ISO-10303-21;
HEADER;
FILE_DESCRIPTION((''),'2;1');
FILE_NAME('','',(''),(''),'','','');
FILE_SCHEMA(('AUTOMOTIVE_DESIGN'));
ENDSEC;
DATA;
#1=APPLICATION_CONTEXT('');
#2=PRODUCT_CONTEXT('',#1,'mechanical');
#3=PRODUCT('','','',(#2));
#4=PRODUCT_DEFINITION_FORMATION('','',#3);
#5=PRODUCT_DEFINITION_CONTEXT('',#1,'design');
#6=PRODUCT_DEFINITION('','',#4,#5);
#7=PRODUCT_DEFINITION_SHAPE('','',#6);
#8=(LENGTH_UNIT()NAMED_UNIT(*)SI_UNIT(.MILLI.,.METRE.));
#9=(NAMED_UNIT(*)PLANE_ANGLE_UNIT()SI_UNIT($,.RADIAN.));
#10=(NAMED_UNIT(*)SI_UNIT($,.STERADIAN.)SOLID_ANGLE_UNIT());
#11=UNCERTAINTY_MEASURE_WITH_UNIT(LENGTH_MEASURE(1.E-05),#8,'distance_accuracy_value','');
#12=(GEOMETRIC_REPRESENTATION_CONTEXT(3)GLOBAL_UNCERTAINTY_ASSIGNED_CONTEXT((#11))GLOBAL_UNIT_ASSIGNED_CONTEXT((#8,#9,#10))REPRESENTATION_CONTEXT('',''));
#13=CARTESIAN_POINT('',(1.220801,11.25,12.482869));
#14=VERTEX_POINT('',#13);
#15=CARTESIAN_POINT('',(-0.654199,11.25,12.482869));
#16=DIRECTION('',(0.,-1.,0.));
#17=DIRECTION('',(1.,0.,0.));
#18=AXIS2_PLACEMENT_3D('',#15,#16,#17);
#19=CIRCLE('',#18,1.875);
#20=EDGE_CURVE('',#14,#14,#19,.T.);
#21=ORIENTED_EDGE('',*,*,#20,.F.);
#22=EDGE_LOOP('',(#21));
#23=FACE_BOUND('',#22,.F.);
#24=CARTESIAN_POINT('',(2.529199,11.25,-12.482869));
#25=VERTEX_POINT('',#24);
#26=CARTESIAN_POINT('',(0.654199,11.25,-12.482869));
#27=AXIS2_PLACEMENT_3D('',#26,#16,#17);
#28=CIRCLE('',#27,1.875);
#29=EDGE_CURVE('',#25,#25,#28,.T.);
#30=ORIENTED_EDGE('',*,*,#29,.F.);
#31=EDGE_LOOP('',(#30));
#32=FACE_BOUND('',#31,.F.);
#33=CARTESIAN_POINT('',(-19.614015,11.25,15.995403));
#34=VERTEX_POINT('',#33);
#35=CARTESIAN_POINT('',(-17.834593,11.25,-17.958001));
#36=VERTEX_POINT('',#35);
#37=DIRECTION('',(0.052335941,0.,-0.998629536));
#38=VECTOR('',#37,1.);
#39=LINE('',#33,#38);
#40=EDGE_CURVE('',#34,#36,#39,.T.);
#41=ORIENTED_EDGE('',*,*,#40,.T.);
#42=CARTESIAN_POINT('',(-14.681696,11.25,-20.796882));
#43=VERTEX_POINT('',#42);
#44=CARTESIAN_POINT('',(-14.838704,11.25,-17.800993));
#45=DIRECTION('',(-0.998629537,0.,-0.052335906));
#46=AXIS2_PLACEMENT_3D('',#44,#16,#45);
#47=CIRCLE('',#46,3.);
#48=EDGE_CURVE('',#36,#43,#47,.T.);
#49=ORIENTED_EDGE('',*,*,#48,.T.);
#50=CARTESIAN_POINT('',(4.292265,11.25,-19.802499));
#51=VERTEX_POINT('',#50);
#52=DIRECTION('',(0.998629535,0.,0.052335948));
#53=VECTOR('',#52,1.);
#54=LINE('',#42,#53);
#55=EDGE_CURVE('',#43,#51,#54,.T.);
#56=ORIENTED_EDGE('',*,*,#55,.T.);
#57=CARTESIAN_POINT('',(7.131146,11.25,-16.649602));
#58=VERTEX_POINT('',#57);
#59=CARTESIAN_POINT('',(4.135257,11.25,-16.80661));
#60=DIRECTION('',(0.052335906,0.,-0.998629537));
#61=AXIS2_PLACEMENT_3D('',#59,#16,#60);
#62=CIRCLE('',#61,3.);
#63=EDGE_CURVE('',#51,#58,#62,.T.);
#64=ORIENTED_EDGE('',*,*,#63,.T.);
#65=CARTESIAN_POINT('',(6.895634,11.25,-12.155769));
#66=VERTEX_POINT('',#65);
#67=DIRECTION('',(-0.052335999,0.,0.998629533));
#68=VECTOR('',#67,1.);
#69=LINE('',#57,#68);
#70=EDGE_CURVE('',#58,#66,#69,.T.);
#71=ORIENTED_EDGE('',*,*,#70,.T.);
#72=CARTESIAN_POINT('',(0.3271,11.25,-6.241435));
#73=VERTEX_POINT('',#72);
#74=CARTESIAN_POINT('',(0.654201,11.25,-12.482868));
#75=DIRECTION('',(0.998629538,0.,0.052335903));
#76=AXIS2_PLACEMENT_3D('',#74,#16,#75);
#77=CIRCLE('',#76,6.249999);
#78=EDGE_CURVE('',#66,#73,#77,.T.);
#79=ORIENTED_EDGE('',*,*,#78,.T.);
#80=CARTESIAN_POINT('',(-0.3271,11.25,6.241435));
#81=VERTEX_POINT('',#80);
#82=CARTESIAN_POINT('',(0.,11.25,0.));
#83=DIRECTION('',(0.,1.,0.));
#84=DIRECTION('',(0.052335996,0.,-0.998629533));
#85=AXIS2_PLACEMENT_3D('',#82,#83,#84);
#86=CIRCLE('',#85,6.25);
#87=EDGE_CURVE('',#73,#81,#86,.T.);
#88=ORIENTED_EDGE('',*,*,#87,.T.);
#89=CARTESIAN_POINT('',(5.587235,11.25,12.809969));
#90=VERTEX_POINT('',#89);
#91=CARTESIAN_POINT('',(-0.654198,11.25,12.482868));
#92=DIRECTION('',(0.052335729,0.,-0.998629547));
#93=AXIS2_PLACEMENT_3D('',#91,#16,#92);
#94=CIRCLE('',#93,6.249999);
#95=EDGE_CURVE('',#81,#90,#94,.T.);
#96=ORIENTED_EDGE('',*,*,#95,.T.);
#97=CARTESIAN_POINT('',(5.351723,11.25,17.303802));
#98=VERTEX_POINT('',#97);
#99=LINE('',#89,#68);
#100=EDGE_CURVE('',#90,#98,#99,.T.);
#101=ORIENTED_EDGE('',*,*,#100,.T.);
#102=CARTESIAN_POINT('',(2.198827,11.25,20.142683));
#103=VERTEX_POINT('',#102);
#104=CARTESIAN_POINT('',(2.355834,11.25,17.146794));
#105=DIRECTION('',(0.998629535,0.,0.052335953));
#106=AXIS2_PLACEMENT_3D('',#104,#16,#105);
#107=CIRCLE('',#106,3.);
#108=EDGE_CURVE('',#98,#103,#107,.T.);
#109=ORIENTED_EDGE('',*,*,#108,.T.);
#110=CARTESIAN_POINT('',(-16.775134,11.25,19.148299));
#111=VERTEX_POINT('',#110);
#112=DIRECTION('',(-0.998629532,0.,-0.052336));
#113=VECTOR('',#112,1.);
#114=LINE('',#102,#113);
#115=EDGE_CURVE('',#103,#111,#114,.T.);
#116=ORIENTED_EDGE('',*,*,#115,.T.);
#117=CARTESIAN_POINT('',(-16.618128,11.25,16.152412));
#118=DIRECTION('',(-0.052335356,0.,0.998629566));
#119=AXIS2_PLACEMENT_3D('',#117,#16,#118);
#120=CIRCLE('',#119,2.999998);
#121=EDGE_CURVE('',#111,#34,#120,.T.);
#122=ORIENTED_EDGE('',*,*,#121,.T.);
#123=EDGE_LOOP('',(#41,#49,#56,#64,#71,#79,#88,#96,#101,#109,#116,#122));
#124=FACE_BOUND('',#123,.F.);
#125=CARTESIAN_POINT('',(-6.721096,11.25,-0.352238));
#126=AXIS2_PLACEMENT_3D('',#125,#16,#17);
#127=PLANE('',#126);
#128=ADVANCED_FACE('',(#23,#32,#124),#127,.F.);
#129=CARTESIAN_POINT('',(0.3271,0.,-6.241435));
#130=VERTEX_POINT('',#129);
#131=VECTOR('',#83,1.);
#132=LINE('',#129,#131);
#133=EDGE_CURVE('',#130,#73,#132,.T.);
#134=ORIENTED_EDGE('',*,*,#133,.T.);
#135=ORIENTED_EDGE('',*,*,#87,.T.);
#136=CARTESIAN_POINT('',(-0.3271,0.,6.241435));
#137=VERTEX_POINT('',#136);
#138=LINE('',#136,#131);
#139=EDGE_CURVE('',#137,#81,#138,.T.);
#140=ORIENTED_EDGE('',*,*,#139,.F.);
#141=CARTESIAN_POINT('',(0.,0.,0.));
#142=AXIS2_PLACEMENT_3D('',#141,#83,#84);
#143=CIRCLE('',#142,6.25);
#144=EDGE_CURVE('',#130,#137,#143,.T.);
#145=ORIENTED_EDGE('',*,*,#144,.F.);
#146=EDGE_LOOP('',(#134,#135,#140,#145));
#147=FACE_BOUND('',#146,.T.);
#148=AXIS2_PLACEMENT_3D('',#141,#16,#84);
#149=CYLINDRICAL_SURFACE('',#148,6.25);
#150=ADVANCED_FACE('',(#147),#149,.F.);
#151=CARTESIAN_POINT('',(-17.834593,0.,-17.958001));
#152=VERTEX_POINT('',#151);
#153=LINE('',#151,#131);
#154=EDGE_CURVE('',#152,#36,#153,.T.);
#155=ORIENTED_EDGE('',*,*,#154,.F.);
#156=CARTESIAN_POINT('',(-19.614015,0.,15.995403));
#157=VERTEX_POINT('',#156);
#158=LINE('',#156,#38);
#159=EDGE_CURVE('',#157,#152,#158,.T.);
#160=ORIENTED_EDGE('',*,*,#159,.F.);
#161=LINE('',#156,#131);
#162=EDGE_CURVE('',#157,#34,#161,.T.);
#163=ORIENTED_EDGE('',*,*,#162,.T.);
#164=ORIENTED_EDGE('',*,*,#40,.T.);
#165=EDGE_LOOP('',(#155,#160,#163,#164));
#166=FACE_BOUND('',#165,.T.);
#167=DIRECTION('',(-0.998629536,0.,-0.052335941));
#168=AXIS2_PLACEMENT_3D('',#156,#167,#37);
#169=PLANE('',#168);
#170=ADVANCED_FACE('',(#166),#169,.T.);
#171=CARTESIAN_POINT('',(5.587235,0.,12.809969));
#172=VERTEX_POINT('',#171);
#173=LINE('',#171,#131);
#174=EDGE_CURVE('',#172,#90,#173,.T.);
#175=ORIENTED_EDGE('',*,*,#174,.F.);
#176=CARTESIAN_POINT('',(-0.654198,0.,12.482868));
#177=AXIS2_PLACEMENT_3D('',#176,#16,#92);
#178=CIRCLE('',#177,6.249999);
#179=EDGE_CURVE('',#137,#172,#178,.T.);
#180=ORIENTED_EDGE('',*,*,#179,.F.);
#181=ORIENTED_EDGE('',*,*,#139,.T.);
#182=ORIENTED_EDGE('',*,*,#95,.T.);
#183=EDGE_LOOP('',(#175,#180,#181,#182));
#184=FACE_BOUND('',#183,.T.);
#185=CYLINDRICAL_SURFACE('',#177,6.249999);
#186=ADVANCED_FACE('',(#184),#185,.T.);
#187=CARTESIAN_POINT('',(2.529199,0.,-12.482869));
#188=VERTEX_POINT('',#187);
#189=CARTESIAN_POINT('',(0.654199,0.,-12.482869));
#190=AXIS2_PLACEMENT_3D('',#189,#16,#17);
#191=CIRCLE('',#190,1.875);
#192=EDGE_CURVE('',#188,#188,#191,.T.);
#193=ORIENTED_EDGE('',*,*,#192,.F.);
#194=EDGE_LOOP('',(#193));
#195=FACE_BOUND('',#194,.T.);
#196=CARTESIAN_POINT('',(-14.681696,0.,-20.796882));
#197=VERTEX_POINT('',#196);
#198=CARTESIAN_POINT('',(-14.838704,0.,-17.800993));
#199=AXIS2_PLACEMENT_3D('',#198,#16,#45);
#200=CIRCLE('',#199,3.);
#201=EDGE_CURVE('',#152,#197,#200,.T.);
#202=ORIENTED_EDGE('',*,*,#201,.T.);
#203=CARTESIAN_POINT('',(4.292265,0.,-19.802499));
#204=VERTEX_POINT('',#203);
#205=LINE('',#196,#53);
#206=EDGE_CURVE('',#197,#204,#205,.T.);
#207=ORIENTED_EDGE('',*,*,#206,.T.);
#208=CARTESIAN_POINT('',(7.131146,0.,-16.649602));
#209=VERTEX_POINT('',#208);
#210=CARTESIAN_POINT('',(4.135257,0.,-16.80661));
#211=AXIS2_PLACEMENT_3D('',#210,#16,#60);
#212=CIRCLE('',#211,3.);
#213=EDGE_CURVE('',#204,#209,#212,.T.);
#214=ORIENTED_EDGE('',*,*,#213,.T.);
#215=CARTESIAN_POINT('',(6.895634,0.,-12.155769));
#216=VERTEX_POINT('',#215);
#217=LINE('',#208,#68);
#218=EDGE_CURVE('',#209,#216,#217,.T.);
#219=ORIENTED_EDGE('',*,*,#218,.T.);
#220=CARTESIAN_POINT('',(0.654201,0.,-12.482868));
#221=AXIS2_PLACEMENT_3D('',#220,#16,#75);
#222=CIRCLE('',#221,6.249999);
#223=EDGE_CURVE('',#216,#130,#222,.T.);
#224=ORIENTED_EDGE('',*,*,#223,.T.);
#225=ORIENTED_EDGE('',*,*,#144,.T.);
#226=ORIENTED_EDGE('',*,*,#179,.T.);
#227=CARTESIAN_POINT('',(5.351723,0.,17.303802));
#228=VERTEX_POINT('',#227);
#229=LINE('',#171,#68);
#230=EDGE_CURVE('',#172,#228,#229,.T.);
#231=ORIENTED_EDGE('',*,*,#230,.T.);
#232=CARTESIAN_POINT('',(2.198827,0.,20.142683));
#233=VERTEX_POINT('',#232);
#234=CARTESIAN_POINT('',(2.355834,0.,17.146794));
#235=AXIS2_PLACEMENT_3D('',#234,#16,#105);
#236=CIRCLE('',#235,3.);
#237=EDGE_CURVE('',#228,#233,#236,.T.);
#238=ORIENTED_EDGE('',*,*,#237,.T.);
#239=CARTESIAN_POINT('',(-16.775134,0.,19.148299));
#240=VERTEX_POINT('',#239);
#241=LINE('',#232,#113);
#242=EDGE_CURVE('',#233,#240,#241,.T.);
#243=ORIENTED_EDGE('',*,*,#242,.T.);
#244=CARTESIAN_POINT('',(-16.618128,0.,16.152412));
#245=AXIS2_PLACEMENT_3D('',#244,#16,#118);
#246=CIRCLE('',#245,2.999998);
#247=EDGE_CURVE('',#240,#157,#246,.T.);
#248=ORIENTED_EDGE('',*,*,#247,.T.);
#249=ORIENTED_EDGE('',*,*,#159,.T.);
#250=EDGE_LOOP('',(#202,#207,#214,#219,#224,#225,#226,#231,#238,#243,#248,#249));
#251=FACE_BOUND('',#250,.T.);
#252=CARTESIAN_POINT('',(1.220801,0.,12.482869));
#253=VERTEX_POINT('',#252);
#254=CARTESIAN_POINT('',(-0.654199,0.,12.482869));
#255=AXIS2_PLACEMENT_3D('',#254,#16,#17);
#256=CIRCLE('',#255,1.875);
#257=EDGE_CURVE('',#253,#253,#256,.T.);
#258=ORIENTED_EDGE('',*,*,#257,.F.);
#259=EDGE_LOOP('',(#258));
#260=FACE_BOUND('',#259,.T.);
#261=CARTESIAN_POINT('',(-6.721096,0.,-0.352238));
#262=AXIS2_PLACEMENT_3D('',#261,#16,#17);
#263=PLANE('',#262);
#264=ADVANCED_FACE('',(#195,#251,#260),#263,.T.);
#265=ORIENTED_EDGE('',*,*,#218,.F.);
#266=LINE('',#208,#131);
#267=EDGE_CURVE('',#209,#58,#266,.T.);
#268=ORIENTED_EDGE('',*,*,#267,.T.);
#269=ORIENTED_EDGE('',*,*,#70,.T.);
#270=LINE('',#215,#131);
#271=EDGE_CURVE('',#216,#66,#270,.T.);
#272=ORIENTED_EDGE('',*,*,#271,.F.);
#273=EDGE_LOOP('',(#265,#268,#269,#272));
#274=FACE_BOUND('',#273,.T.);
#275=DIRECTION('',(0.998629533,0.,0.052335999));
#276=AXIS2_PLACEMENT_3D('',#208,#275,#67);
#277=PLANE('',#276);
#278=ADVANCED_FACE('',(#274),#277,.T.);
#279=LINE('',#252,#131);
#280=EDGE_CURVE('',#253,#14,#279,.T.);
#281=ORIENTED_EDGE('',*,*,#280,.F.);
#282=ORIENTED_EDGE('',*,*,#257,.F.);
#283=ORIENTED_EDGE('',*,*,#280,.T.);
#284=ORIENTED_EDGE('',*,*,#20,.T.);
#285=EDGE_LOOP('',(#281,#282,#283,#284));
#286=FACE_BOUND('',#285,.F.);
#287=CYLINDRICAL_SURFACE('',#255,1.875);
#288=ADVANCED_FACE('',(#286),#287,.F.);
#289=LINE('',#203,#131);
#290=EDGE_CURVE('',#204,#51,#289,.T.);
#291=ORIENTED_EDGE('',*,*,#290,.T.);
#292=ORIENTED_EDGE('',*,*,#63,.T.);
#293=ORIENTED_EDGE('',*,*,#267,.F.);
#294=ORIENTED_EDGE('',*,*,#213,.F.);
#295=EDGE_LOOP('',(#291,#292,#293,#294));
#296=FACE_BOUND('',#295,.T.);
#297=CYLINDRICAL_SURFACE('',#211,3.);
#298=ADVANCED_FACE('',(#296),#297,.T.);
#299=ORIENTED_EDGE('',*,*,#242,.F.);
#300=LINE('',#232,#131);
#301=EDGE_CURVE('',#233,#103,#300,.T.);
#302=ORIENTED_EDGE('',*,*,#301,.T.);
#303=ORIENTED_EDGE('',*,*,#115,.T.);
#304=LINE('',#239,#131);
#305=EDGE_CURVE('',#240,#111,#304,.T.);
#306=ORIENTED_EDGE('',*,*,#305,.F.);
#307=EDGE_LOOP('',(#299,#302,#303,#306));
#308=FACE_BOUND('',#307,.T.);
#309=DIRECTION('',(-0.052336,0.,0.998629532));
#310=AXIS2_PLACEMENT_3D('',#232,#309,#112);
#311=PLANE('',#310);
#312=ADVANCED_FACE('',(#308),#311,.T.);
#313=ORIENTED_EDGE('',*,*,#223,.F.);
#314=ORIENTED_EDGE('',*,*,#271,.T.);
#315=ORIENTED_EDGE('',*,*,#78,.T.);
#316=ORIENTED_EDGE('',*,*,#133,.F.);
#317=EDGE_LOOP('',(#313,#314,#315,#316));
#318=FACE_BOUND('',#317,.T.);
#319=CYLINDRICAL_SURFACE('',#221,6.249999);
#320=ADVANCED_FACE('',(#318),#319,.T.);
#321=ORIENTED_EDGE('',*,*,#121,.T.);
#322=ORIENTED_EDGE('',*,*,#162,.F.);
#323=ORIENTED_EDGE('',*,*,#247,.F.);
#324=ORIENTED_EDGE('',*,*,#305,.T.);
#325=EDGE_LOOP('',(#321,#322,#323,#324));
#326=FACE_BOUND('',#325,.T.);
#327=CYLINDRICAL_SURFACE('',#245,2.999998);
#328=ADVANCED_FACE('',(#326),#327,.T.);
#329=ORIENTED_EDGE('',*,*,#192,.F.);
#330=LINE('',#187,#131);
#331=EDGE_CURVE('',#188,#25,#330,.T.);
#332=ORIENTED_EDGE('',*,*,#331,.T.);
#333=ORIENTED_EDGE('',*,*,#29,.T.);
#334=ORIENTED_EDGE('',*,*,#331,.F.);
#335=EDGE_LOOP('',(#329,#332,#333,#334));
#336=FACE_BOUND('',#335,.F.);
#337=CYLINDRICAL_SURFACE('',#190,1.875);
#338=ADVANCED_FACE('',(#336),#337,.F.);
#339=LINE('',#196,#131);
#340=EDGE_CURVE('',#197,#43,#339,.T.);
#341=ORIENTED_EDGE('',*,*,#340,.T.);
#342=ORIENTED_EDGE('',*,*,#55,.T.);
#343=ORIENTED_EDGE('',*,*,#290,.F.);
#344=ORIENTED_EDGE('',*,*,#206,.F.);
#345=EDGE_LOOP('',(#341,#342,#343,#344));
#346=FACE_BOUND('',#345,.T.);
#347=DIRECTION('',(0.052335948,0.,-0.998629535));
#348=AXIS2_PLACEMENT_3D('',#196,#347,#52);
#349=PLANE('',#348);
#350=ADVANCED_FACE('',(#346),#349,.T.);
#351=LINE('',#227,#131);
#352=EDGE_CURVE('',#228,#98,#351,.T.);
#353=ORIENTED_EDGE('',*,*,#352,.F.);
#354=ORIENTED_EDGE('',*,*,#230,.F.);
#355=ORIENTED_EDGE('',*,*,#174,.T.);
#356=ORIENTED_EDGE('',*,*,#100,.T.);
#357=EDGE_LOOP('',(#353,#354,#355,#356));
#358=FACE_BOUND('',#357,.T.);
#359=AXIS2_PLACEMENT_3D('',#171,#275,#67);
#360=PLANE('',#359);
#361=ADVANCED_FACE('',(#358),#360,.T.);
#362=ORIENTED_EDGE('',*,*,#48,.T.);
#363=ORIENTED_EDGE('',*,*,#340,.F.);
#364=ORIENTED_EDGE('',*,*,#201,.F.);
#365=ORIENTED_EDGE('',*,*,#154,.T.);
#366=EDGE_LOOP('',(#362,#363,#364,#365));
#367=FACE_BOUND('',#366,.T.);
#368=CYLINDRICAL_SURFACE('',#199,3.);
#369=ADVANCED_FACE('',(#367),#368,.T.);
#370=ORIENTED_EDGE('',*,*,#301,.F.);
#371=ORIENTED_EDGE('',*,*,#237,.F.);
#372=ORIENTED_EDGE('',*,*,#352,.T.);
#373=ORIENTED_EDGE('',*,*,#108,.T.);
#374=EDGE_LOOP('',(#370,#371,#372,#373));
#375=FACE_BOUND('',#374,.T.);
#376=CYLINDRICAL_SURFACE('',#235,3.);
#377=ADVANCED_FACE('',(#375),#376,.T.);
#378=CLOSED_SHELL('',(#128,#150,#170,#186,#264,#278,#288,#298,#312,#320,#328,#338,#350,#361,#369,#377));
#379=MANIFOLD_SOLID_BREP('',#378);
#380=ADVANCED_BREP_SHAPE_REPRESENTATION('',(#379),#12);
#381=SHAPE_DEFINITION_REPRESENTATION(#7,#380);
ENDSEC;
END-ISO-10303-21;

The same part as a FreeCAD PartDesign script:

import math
import FreeCAD as App
import Part
import Sketcher
from FreeCAD import Vector
Q = App.Units.Quantity

doc = App.newDocument("Part")
params = doc.addObject("Spreadsheet::Sheet", "Params")
for row, (alias, value) in enumerate([
    ("sketch1_radius", "3 mm"),
    ("sketch1_diameter", "3.75 mm"),
    ("sketch1_radius2", "6.249999 mm"),
    ("sketch1_length", "19 mm"),
    ("sketch1_length2", "34 mm"),
    ("pad1_length", "11.25 mm"),
], start=1):
    params.set(f"A{row}", alias)
    params.set(f"B{row}", "=" + value)
    params.setAlias(f"B{row}", alias)

body = doc.addObject("PartDesign::Body", "Body")

sketch1 = doc.addObject("Sketcher::SketchObject", "Sketch")
body.addObject(sketch1)
sketch1.AttachmentSupport = (doc.XZ_Plane, [""])
sketch1.MapMode = "FlatFace"
sketch1.addGeometry([
    Part.ArcOfCircle(Part.Circle(Vector(-0.654198, 12.482868, 0), Vector(0, 0, 1), 6.249999), math.radians(-87.000013), math.radians(3.000009)),
    Part.LineSegment(Vector(5.587235, 12.809969, 0), Vector(5.351723, 17.303802, 0)),
    Part.ArcOfCircle(Part.Circle(Vector(2.355834, 17.146794, 0), Vector(0, 0, 1), 3), math.radians(3), math.radians(92.999986)),
    Part.LineSegment(Vector(2.198827, 20.142683, 0), Vector(-16.775134, 19.148299, 0)),
    Part.ArcOfCircle(Part.Circle(Vector(-16.618128, 16.152412, 0), Vector(0, 0, 1), 2.999998), math.radians(92.999966), math.radians(183.000021)),
    Part.LineSegment(Vector(-19.614015, 15.995403, 0), Vector(-17.834593, -17.958001, 0)),
    Part.ArcOfCircle(Part.Circle(Vector(-14.838704, -17.800993, 0), Vector(0, 0, 1), 3), math.radians(-177.000003), math.radians(-86.999993)),
    Part.LineSegment(Vector(-14.681696, -20.796882, 0), Vector(4.292265, -19.802499, 0)),
    Part.ArcOfCircle(Part.Circle(Vector(4.135257, -16.80661, 0), Vector(0, 0, 1), 3), math.radians(-87.000003), math.radians(3.000007)),
    Part.LineSegment(Vector(7.131146, -16.649602, 0), Vector(6.895634, -12.155769, 0)),
    Part.ArcOfCircle(Part.Circle(Vector(0.654201, -12.482868, 0), Vector(0, 0, 1), 6.249999), math.radians(2.999997), math.radians(93.000009)),
    Part.ArcOfCircle(Part.Circle(Vector(0, 0, 0), Vector(0, 0, 1), 6.25), math.radians(93.000002), math.radians(273.000002)),
    Part.Circle(Vector(0.654199, -12.482869, 0), Vector(0, 0, 1), 1.875),
    Part.Circle(Vector(-0.654199, 12.482869, 0), Vector(0, 0, 1), 1.875),
], False)
sketch1.addConstraint([
    Sketcher.Constraint("Tangent", 0, 2, 1, 1),
    Sketcher.Constraint("Tangent", 1, 2, 2, 1),
    Sketcher.Constraint("Tangent", 2, 2, 3, 1),
    Sketcher.Constraint("Tangent", 3, 2, 4, 1),
    Sketcher.Constraint("Tangent", 4, 2, 5, 1),
    Sketcher.Constraint("Tangent", 5, 2, 6, 1),
    Sketcher.Constraint("Tangent", 6, 2, 7, 1),
    Sketcher.Constraint("Tangent", 7, 2, 8, 1),
    Sketcher.Constraint("Tangent", 8, 2, 9, 1),
    Sketcher.Constraint("Tangent", 9, 2, 10, 1),
    Sketcher.Constraint("Tangent", 10, 2, 11, 2),
    Sketcher.Constraint("Tangent", 11, 1, 0, 1),
    Sketcher.Constraint("Coincident", 11, 3, -1, 1),
    Sketcher.Constraint("Coincident", 12, 3, 10, 3),
    Sketcher.Constraint("Coincident", 13, 3, 0, 3),
    Sketcher.Constraint("Equal", 2, 4),
    Sketcher.Constraint("Equal", 4, 6),
    Sketcher.Constraint("Equal", 6, 8),
    Sketcher.Constraint("Equal", 0, 10),
    Sketcher.Constraint("Equal", 10, 11),
    Sketcher.Constraint("Equal", 12, 13),
    Sketcher.Constraint("Perpendicular", 1, 3),
    Sketcher.Constraint("Perpendicular", 3, 5),
    Sketcher.Constraint("Perpendicular", 5, 7),
    Sketcher.Constraint("Perpendicular", 7, 9),
    Sketcher.Constraint("Equal", 3, 7),
    Sketcher.Constraint("Equal", 1, 9),
    Sketcher.Constraint("Radius", 2, 3.0),
    Sketcher.Constraint("Diameter", 12, 3.75),
    Sketcher.Constraint("Angle", 1, Q("93.000002 deg")),
    Sketcher.Constraint("Radius", 0, 6.249999),
    Sketcher.Constraint("Distance", 3, 19.0),
    Sketcher.Constraint("Distance", 5, 34.0),
    Sketcher.Constraint("DistanceY", 5, 2, -1, 1, 17.958001),
])
sketch1.setExpression("Constraints[27]", "Params.sketch1_radius")
sketch1.setExpression("Constraints[28]", "Params.sketch1_diameter")
sketch1.setExpression("Constraints[30]", "Params.sketch1_radius2")
sketch1.setExpression("Constraints[31]", "Params.sketch1_length")
sketch1.setExpression("Constraints[32]", "Params.sketch1_length2")
pad1 = doc.addObject("PartDesign::Pad", "Pad")
body.addObject(pad1)
pad1.Profile = sketch1
pad1.setExpression("Length", "Params.pad1_length")
pad1.Reversed = True

doc.recompute()
